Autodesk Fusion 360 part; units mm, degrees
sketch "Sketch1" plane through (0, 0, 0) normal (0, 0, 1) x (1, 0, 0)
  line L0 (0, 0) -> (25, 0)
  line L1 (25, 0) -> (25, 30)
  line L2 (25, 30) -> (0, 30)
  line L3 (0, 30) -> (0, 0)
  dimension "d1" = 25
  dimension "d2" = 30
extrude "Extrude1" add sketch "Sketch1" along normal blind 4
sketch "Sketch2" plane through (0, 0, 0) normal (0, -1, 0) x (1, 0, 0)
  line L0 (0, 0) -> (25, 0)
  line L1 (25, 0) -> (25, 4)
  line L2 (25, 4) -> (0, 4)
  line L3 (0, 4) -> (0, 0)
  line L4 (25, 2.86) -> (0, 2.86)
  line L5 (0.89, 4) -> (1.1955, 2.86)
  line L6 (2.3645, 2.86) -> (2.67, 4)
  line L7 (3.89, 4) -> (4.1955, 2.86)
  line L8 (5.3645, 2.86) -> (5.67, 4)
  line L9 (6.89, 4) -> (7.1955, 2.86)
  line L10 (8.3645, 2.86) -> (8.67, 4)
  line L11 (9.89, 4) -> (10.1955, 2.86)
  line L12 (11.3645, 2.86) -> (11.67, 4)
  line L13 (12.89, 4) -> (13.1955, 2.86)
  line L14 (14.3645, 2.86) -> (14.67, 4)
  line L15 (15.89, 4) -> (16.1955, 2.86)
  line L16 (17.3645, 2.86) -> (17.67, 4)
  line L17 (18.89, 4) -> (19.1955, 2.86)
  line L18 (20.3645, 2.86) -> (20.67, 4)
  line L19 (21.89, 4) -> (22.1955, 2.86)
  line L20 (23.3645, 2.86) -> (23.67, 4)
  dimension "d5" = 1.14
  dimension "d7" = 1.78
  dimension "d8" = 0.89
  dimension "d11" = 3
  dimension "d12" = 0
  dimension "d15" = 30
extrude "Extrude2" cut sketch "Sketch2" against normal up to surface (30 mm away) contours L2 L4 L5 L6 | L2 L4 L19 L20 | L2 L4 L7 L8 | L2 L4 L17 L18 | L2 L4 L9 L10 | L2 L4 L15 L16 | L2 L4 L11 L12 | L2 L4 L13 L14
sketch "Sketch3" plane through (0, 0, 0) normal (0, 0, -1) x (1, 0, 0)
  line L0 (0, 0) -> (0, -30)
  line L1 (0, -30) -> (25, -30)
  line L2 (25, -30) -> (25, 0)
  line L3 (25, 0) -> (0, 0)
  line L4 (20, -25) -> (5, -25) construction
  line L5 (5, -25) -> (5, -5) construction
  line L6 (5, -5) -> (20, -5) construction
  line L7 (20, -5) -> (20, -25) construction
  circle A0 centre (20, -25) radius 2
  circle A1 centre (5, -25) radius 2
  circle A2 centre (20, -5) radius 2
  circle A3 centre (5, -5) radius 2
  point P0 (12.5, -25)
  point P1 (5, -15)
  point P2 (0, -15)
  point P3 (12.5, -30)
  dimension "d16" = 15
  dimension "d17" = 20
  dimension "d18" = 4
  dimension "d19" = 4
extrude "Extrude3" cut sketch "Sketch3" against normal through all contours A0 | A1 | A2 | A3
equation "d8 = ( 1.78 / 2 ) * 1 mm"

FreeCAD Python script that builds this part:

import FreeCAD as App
import Part
import Sketcher
from FreeCAD import Vector
Q = App.Units.Quantity

doc = App.newDocument("Part")
body = doc.addObject("PartDesign::Body", "Body")

# Sketch on XY plane
sketch1 = body.newObject("Sketcher::SketchObject", "Sketch")
sketch1.AttachmentSupport = (doc.getObject("XY_Plane"), [""])
sketch1.MapMode = "FlatFace"
sketch1.addGeometry([
    Part.LineSegment(Vector(0, 30, 0), Vector(0, 0, 0)),
    Part.LineSegment(Vector(0, 0, 0), Vector(25, 0, 0)),
    Part.LineSegment(Vector(25, 0, 0), Vector(25, 30, 0)),
    Part.LineSegment(Vector(25, 30, 0), Vector(0, 30, 0)),
], False)
sketch1.addConstraint([
    Sketcher.Constraint("Coincident", 0, 2, 1, 1),
    Sketcher.Constraint("Coincident", 1, 2, 2, 1),
    Sketcher.Constraint("Coincident", 2, 2, 3, 1),
    Sketcher.Constraint("Coincident", 3, 2, 0, 1),
    Sketcher.Constraint("Vertical", 0),
    Sketcher.Constraint("Horizontal", 1),
    Sketcher.Constraint("Vertical", 2),
    Sketcher.Constraint("Horizontal", 3),
    Sketcher.Constraint("Coincident", 0, 2, -1, 1),
    Sketcher.Constraint("DistanceX", 1, 1, 1, 2, Q("25 mm")),
    Sketcher.Constraint("DistanceY", 0, 2, 0, 1, Q("30 mm")),
])
pad1 = body.newObject("PartDesign::Pad", "Pad")
pad1.Profile = sketch1
pad1.Length = 4

# Sketch on XZ plane
sketch2 = body.newObject("Sketcher::SketchObject", "Sketch001")
sketch2.AttachmentSupport = (doc.getObject("XZ_Plane"), [""])
sketch2.MapMode = "FlatFace"
sketch2.addGeometry([
    Part.LineSegment(Vector(0.9, 4, 0), Vector(1.2, 2.9, 0)),  # 0
    Part.LineSegment(Vector(1.2, 2.9, 0), Vector(2.4, 2.9, 0)),  # 1
    Part.LineSegment(Vector(2.4, 2.9, 0), Vector(2.7, 4, 0)),  # 2
    Part.LineSegment(Vector(2.7, 4, 0), Vector(0.9, 4, 0)),  # 3
    Part.LineSegment(Vector(22.2, 2.9, 0), Vector(23.4, 2.9, 0)),  # 4
    Part.LineSegment(Vector(23.4, 2.9, 0), Vector(23.7, 4, 0)),  # 5
    Part.LineSegment(Vector(23.7, 4, 0), Vector(21.9, 4, 0)),  # 6
    Part.LineSegment(Vector(21.9, 4, 0), Vector(22.2, 2.9, 0)),  # 7
    Part.LineSegment(Vector(3.9, 4, 0), Vector(4.2, 2.9, 0)),  # 8
    Part.LineSegment(Vector(4.2, 2.9, 0), Vector(5.4, 2.9, 0)),  # 9
    Part.LineSegment(Vector(5.4, 2.9, 0), Vector(5.7, 4, 0)),  # 10
    Part.LineSegment(Vector(5.7, 4, 0), Vector(3.9, 4, 0)),  # 11
    Part.LineSegment(Vector(19.2, 2.9, 0), Vector(20.4, 2.9, 0)),  # 12
    Part.LineSegment(Vector(20.4, 2.9, 0), Vector(20.7, 4, 0)),  # 13
    Part.LineSegment(Vector(20.7, 4, 0), Vector(18.9, 4, 0)),  # 14
    Part.LineSegment(Vector(18.9, 4, 0), Vector(19.2, 2.9, 0)),  # 15
    Part.LineSegment(Vector(6.9, 4, 0), Vector(7.2, 2.9, 0)),  # 16
    Part.LineSegment(Vector(7.2, 2.9, 0), Vector(8.4, 2.9, 0)),  # 17
    Part.LineSegment(Vector(8.4, 2.9, 0), Vector(8.7, 4, 0)),  # 18
    Part.LineSegment(Vector(8.7, 4, 0), Vector(6.9, 4, 0)),  # 19
    Part.LineSegment(Vector(16.2, 2.9, 0), Vector(17.4, 2.9, 0)),  # 20
    Part.LineSegment(Vector(17.4, 2.9, 0), Vector(17.7, 4, 0)),  # 21
    Part.LineSegment(Vector(17.7, 4, 0), Vector(15.9, 4, 0)),  # 22
    Part.LineSegment(Vector(15.9, 4, 0), Vector(16.2, 2.9, 0)),  # 23
    Part.LineSegment(Vector(9.9, 4, 0), Vector(10.2, 2.9, 0)),  # 24
    Part.LineSegment(Vector(10.2, 2.9, 0), Vector(11.4, 2.9, 0)),  # 25
    Part.LineSegment(Vector(11.4, 2.9, 0), Vector(11.7, 4, 0)),  # 26
    Part.LineSegment(Vector(11.7, 4, 0), Vector(9.9, 4, 0)),  # 27
    Part.LineSegment(Vector(13.2, 2.9, 0), Vector(14.4, 2.9, 0)),  # 28
    Part.LineSegment(Vector(14.4, 2.9, 0), Vector(14.7, 4, 0)),  # 29
    Part.LineSegment(Vector(14.7, 4, 0), Vector(12.9, 4, 0)),  # 30
    Part.LineSegment(Vector(12.9, 4, 0), Vector(13.2, 2.9, 0)),  # 31
], False)
sketch2.addConstraint([
    Sketcher.Constraint("Coincident", 0, 2, 1, 1),
    Sketcher.Constraint("Coincident", 1, 2, 2, 1),
    Sketcher.Constraint("Coincident", 2, 2, 3, 1),
    Sketcher.Constraint("Coincident", 3, 2, 0, 1),
    Sketcher.Constraint("Coincident", 4, 2, 5, 1),
    Sketcher.Constraint("Coincident", 5, 2, 6, 1),
    Sketcher.Constraint("Coincident", 6, 2, 7, 1),
    Sketcher.Constraint("Coincident", 7, 2, 4, 1),
    Sketcher.Constraint("Coincident", 8, 2, 9, 1),
    Sketcher.Constraint("Coincident", 9, 2, 10, 1),
    Sketcher.Constraint("Coincident", 10, 2, 11, 1),
    Sketcher.Constraint("Coincident", 11, 2, 8, 1),
    Sketcher.Constraint("Coincident", 12, 2, 13, 1),
    Sketcher.Constraint("Coincident", 13, 2, 14, 1),
    Sketcher.Constraint("Coincident", 14, 2, 15, 1),
    Sketcher.Constraint("Coincident", 15, 2, 12, 1),
    Sketcher.Constraint("Coincident", 16, 2, 17, 1),
    Sketcher.Constraint("Coincident", 17, 2, 18, 1),
    Sketcher.Constraint("Coincident", 18, 2, 19, 1),
    Sketcher.Constraint("Coincident", 19, 2, 16, 1),
    Sketcher.Constraint("Coincident", 20, 2, 21, 1),
    Sketcher.Constraint("Coincident", 21, 2, 22, 1),
    Sketcher.Constraint("Coincident", 22, 2, 23, 1),
    Sketcher.Constraint("Coincident", 23, 2, 20, 1),
    Sketcher.Constraint("Coincident", 24, 2, 25, 1),
    Sketcher.Constraint("Coincident", 25, 2, 26, 1),
    Sketcher.Constraint("Coincident", 26, 2, 27, 1),
    Sketcher.Constraint("Coincident", 27, 2, 24, 1),
    Sketcher.Constraint("Coincident", 28, 2, 29, 1),
    Sketcher.Constraint("Coincident", 29, 2, 30, 1),
    Sketcher.Constraint("Coincident", 30, 2, 31, 1),
    Sketcher.Constraint("Coincident", 31, 2, 28, 1),
    Sketcher.Constraint("Horizontal", 1),
    Sketcher.Constraint("Horizontal", 3),
    Sketcher.Constraint("Horizontal", 4),
    Sketcher.Constraint("Horizontal", 6),
    Sketcher.Constraint("Horizontal", 9),
    Sketcher.Constraint("Horizontal", 11),
    Sketcher.Constraint("Horizontal", 12),
    Sketcher.Constraint("Horizontal", 14),
    Sketcher.Constraint("Horizontal", 17),
    Sketcher.Constraint("Horizontal", 19),
    Sketcher.Constraint("Horizontal", 20),
    Sketcher.Constraint("Horizontal", 22),
    Sketcher.Constraint("Horizontal", 25),
    Sketcher.Constraint("Horizontal", 27),
    Sketcher.Constraint("Horizontal", 28),
    Sketcher.Constraint("Horizontal", 30),
    Sketcher.Constraint("Parallel", 2, 5),
    Sketcher.Constraint("Parallel", 0, 7),
    Sketcher.Constraint("Parallel", 7, 8),
    Sketcher.Constraint("Parallel", 5, 10),
    Sketcher.Constraint("Parallel", 10, 13),
    Sketcher.Constraint("Parallel", 8, 15),
    Sketcher.Constraint("Parallel", 15, 16),
    Sketcher.Constraint("Parallel", 13, 18),
    Sketcher.Constraint("Parallel", 18, 21),
    Sketcher.Constraint("Parallel", 16, 23),
    Sketcher.Constraint("Parallel", 23, 24),
    Sketcher.Constraint("Parallel", 21, 26),
    Sketcher.Constraint("Parallel", 26, 29),
    Sketcher.Constraint("Parallel", 24, 31),
    Sketcher.Constraint("Horizontal", 1, 2, 4, 2),
    Sketcher.Constraint("Horizontal", 3, 2, 5, 2),
    Sketcher.Constraint("Horizontal", 7, 2, 8, 2),
    Sketcher.Constraint("Horizontal", 6, 2, 10, 2),
    Sketcher.Constraint("Horizontal", 9, 2, 12, 2),
    Sketcher.Constraint("Horizontal", 11, 2, 13, 2),
    Sketcher.Constraint("Horizontal", 15, 2, 16, 2),
    Sketcher.Constraint("Horizontal", 14, 2, 18, 2),
    Sketcher.Constraint("Horizontal", 17, 2, 20, 2),
    Sketcher.Constraint("Horizontal", 19, 2, 21, 2),
    Sketcher.Constraint("Horizontal", 23, 2, 24, 2),
    Sketcher.Constraint("Horizontal", 22, 2, 26, 2),
    Sketcher.Constraint("Horizontal", 25, 2, 28, 2),
    Sketcher.Constraint("Horizontal", 27, 2, 29, 2),
    Sketcher.Constraint("Equal", 1, 4),
    Sketcher.Constraint("Equal", 4, 9),
    Sketcher.Constraint("Equal", 9, 12),
    Sketcher.Constraint("Equal", 12, 17),
    Sketcher.Constraint("Equal", 17, 20),
    Sketcher.Constraint("Equal", 20, 25),
    Sketcher.Constraint("Equal", 25, 28),
    Sketcher.Constraint("Equal", 0, 2),
    Sketcher.Constraint("DistanceX", 0, 2, 8, 2, Q("3 mm")),
    Sketcher.Constraint("DistanceX", 12, 2, 4, 2, Q("3 mm")),
    Sketcher.Constraint("DistanceX", 8, 2, 16, 2, Q("3 mm")),
    Sketcher.Constraint("DistanceX", 20, 2, 12, 2, Q("3 mm")),
    Sketcher.Constraint("DistanceX", 16, 2, 24, 2, Q("3 mm")),
    Sketcher.Constraint("DistanceX", 28, 2, 20, 2, Q("3 mm")),
    Sketcher.Constraint("DistanceX", 25, 2, 28, 2, Q("3 mm")),
    Sketcher.Constraint("DistanceX", 3, 2, 3, 1, Q("1.78 mm")),
    Sketcher.Constraint("DistanceX", -1, 1, 3, 2, Q("0.89 mm")),
    Sketcher.Constraint("DistanceY", 1, 2, 2, 2, Q("1.14 mm")),
    Sketcher.Constraint("DistanceY", -1, 1, 2, 2, Q("4 mm")),
    Sketcher.Constraint("DistanceX", 1, 1, 1, 2, Q("1.169 mm")),
])
pocket1 = body.newObject("PartDesign::Pocket", "Pocket")
pocket1.Profile = sketch2
pocket1.Length = 30

# Sketch on XY plane
sketch3 = body.newObject("Sketcher::SketchObject", "Sketch002")
sketch3.AttachmentSupport = (doc.getObject("XY_Plane"), [""])
sketch3.MapMode = "FlatFace"
sketch3.addGeometry([
    Part.Circle(Vector(20, 25, 0), Vector(0, 0, 1), 2),
    Part.Circle(Vector(5, 25, 0), Vector(0, 0, 1), 2),
    Part.Circle(Vector(20, 5, 0), Vector(0, 0, 1), 2),
    Part.Circle(Vector(5, 5, 0), Vector(0, 0, 1), 2),
], False)
sketch3.addConstraint([
    Sketcher.Constraint("Equal", 0, 1),
    Sketcher.Constraint("Equal", 1, 2),
    Sketcher.Constraint("Equal", 2, 3),
    Sketcher.Constraint("Horizontal", 0, 3, 1, 3),
    Sketcher.Constraint("Horizontal", 2, 3, 3, 3),
    Sketcher.Constraint("Vertical", 0, 3, 2, 3),
    Sketcher.Constraint("Vertical", 1, 3, 3, 3),
    Sketcher.Constraint("Diameter", 0, Q("4 mm")),
    Sketcher.Constraint("DistanceX", -1, 1, 0, 3, Q("20 mm")),
    Sketcher.Constraint("DistanceX", 1, 3, 0, 3, Q("15 mm")),
    Sketcher.Constraint("DistanceY", 2, 3, 0, 3, Q("20 mm")),
    Sketcher.Constraint("DistanceY", -1, 1, 0, 3, Q("25 mm")),
])
pocket2 = body.newObject("PartDesign::Pocket", "Pocket001")
pocket2.Profile = sketch3
pocket2.Type = "ThroughAll"
pocket2.Reversed = True

doc.recompute()
